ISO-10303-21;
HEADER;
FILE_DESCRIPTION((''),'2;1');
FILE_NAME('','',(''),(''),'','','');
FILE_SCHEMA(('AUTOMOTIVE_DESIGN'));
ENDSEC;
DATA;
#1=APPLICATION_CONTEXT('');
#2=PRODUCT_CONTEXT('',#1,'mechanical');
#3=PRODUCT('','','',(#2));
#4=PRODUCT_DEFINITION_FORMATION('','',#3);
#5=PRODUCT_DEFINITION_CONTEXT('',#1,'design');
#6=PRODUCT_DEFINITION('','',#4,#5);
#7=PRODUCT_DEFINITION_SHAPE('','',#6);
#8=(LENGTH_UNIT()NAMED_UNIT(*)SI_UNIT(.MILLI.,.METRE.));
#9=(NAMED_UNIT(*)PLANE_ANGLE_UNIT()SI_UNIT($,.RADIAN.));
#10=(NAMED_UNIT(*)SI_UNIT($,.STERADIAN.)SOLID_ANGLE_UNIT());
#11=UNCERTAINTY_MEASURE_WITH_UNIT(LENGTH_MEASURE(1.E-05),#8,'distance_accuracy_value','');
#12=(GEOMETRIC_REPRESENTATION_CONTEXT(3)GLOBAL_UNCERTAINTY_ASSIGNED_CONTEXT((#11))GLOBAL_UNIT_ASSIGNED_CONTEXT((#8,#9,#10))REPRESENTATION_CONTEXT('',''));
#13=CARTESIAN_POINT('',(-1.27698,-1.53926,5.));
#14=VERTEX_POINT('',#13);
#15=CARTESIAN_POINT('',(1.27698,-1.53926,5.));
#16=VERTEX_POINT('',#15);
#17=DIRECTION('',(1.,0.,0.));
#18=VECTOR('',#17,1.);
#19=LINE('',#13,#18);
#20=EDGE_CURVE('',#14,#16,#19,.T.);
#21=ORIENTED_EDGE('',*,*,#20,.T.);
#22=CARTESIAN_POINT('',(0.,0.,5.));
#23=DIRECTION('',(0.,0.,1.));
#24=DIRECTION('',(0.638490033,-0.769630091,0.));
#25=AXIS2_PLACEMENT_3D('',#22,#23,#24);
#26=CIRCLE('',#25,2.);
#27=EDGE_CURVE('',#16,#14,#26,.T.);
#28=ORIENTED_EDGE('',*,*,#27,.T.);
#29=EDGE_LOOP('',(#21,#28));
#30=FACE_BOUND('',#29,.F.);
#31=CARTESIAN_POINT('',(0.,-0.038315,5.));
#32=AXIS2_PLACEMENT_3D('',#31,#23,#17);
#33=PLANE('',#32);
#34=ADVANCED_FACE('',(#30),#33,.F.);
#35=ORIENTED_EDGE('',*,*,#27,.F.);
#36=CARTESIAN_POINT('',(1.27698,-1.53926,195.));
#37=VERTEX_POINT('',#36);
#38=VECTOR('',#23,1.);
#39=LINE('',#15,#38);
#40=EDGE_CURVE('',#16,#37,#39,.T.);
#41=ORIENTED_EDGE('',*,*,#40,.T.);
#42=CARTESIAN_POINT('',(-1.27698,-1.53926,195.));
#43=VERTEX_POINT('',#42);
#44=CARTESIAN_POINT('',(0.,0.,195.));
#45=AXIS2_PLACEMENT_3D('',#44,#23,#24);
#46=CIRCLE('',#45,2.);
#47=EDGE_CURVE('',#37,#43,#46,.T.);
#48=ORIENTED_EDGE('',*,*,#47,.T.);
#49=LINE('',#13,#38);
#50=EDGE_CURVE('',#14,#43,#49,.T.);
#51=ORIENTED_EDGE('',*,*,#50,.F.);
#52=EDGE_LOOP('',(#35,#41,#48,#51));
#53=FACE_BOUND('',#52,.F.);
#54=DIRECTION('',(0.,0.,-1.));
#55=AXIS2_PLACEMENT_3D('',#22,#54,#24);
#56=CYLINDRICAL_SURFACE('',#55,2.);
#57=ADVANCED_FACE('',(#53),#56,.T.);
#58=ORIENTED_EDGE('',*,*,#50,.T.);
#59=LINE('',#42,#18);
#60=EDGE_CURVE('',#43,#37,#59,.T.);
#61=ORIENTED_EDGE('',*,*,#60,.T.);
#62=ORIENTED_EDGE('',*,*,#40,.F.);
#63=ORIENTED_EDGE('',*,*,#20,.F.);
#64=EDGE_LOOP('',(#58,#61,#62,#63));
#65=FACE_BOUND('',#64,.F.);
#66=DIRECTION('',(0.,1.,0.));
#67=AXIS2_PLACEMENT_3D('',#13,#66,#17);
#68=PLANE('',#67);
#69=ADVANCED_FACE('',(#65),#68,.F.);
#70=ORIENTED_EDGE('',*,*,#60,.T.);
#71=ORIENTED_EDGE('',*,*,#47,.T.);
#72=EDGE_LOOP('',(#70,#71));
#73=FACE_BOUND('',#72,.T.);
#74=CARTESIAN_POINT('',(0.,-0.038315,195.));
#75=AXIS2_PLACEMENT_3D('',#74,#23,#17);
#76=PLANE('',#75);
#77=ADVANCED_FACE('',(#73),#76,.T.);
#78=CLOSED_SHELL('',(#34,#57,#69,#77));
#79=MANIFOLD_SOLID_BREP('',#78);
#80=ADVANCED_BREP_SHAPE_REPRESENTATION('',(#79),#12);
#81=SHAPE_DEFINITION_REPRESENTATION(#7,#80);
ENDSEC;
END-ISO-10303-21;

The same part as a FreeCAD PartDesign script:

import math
import FreeCAD as App
import Part
import Sketcher
Q = App.Units.Quantity

doc = App.newDocument("Part")
body = doc.addObject("PartDesign::Body", "Body")

# Sketch on XY plane
sketch1 = doc.addObject("Sketcher::SketchObject", "Sketch")
body.addObject(sketch1)
sketch1.AttachmentSupport = (doc.XY_Plane, [""])
sketch1.MapMode = "FlatFace"
sketch1.AttachmentOffset = App.Placement(App.Vector(0, 0, 5), App.Rotation())
sketch1.addGeometry([
    Part.ArcOfCircle(Part.Circle(App.Vector(0, 0, 0), App.Vector(0, 0, 1), 2), math.radians(-50), math.radians(230)),
    Part.LineSegment(App.Vector(-1.3, -1.5, 0), App.Vector(1.3, -1.5, 0)),
], False)
sketch1.addConstraint([
    Sketcher.Constraint("Coincident", 0, 1, 1, 2),
    Sketcher.Constraint("Coincident", 1, 1, 0, 2),
    Sketcher.Constraint("Horizontal", 1),
    Sketcher.Constraint("Coincident", 0, 3, -1, 1),
    Sketcher.Constraint("Radius", 0, Q("2 mm")),
    Sketcher.Constraint("DistanceX", 1, 1, 1, 2, Q("2.55396 mm")),
])
pad1 = doc.addObject("PartDesign::Pad", "Pad")
body.addObject(pad1)
pad1.Profile = sketch1
pad1.Length = 190

doc.recompute()
